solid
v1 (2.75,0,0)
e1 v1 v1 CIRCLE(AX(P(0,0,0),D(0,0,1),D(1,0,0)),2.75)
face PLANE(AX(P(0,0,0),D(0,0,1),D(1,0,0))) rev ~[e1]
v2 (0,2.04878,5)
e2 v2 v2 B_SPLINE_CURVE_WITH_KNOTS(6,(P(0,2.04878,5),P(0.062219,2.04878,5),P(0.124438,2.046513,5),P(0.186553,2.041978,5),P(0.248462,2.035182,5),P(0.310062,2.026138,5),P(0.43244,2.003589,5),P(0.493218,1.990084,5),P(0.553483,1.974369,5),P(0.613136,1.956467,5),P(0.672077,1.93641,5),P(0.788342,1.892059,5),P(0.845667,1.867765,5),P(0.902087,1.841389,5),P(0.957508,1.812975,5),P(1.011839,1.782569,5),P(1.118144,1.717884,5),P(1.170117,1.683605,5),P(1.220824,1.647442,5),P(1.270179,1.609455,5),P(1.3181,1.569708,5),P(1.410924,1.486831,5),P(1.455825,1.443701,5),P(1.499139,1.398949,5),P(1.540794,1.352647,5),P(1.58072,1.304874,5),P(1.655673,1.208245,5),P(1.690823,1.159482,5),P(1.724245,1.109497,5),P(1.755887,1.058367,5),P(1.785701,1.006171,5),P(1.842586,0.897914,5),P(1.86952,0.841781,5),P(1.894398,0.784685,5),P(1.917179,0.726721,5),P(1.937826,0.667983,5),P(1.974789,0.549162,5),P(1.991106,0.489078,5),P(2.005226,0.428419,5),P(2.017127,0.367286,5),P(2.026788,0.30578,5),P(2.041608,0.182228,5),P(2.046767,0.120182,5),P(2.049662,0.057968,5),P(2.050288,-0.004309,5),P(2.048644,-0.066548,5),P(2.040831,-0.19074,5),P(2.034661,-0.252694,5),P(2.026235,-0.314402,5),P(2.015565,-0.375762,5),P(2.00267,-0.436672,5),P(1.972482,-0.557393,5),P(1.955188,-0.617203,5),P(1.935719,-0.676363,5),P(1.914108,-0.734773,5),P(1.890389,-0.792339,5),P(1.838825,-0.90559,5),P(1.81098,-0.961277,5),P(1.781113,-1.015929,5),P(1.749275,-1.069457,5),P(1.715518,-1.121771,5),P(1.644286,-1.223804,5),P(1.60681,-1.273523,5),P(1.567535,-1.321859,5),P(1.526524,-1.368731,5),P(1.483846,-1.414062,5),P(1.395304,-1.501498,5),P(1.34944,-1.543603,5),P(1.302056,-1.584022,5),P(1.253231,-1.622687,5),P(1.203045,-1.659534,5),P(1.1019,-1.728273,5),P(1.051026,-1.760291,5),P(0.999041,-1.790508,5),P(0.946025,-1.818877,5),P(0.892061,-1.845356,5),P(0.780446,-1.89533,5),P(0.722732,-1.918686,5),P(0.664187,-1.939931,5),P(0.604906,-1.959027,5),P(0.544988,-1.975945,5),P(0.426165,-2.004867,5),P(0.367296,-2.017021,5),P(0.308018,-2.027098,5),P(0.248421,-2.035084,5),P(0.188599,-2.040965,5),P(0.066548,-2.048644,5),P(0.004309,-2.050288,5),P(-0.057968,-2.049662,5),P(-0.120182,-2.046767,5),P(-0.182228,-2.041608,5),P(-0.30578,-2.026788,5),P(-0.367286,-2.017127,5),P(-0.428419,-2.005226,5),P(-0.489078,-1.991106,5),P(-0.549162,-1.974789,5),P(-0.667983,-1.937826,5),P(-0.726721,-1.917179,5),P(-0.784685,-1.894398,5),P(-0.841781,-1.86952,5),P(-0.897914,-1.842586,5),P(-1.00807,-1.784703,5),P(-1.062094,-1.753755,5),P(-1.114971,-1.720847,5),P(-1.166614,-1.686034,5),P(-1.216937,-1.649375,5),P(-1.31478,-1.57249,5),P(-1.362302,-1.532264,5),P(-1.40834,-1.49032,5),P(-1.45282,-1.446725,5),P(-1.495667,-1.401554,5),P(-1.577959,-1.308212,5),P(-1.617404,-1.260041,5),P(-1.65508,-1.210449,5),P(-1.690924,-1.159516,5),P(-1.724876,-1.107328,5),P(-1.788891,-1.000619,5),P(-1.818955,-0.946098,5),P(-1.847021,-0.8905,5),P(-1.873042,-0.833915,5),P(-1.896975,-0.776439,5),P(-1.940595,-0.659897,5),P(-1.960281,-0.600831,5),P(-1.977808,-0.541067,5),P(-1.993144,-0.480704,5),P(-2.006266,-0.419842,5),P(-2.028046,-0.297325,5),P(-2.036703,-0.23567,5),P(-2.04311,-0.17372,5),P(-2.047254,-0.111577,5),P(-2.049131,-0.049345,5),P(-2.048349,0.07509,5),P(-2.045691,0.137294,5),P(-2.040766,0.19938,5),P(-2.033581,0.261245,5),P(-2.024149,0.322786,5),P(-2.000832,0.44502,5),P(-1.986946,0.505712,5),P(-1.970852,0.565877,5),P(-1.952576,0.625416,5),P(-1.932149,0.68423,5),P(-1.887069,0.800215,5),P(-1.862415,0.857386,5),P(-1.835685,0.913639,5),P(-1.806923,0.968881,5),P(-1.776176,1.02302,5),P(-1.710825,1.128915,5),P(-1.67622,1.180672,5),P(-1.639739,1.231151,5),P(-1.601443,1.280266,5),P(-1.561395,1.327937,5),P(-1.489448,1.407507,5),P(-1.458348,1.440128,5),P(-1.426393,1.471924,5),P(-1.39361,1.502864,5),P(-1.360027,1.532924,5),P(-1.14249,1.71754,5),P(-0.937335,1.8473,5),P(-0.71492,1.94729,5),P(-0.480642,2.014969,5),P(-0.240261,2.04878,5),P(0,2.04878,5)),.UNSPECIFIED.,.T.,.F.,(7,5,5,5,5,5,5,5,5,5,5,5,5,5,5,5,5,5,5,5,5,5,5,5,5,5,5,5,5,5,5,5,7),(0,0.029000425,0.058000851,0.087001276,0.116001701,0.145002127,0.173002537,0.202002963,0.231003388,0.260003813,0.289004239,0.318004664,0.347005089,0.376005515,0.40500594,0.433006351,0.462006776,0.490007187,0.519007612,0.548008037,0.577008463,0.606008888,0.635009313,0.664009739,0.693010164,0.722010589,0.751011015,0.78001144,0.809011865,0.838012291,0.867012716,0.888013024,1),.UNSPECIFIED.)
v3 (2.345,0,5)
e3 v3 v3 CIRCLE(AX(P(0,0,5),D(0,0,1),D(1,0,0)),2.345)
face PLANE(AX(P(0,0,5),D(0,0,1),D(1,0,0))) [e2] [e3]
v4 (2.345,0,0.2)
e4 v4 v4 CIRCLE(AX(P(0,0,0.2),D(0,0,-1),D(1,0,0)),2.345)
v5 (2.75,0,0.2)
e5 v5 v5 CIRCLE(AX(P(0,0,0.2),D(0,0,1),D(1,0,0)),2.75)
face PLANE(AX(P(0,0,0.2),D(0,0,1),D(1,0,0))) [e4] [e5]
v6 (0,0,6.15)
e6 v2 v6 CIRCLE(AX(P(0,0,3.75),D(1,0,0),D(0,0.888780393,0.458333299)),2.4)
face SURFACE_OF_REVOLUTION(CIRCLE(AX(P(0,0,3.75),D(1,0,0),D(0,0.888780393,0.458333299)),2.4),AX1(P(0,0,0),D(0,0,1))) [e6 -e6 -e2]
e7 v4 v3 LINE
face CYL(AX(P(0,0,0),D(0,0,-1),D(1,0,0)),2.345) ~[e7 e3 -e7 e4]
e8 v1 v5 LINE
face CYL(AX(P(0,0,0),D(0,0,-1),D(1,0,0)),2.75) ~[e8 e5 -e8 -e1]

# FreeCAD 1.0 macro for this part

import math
import FreeCAD as App
import Part
import Sketcher

doc = App.newDocument("Part")
body = doc.addObject("PartDesign::Body", "Body")

sketch1 = body.newObject("Sketcher::SketchObject", "Sketch")
sketch1.AttachmentSupport = (doc.getObject("XY_Plane"), [""])
sketch1.MapMode = "FlatFace"
sketch1.addGeometry(Part.Circle(App.Vector(0, 0, 0), App.Vector(0, 0, 1), 2.8), False)
sketch1.addConstraint([
    Sketcher.Constraint("Coincident", 0, 3, -1, 1),
    Sketcher.Constraint("Diameter", 0, 5.5),
])
pad1 = body.newObject("PartDesign::Pad", "Pad")
pad1.Profile = sketch1
pad1.Length = 0.2

sketch2 = body.newObject("Sketcher::SketchObject", "Sketch001")
sketch2.AttachmentSupport = (doc.getObject("XY_Plane"), [""])
sketch2.MapMode = "FlatFace"
sketch2.addGeometry(Part.Circle(App.Vector(0, 0, 0), App.Vector(0, 0, 1), 2.3), False)
sketch2.addConstraint([
    Sketcher.Constraint("Coincident", 0, 3, -1, 1),
    Sketcher.Constraint("Diameter", 0, 4.69),
])
pad2 = body.newObject("PartDesign::Pad", "Pad001")
pad2.Profile = sketch2
pad2.Length = 5

sketch3 = body.newObject("Sketcher::SketchObject", "Sketch002")
sketch3.AttachmentSupport = (doc.getObject("YZ_Plane"), [""])
sketch3.MapMode = "FlatFace"
sketch3.addGeometry([
    Part.LineSegment(App.Vector(0, 6.2, 0), App.Vector(0, 4.8, 0)),
    Part.LineSegment(App.Vector(0, 4.8, 0), App.Vector(2.1, 4.8, 0)),
    Part.ArcOfCircle(Part.Circle(App.Vector(0, 3.8, 0), App.Vector(0, 0, 1), 2.4), math.radians(27), math.radians(90)),
], False)
sketch3.addConstraint([
    Sketcher.Constraint("Coincident", 0, 2, 1, 1),
    Sketcher.Constraint("Coincident", 1, 2, 2, 1),
    Sketcher.Constraint("Coincident", 2, 2, 0, 1),
    Sketcher.Constraint("Vertical", 0),
    Sketcher.Constraint("Horizontal", 1),
    Sketcher.Constraint("PointOnObject", 2, 3, -2),
    Sketcher.Constraint("PointOnObject", 0, 2, -2),
    Sketcher.Constraint("Radius", 2, 2.4),
    Sketcher.Constraint("DistanceY", 0, 2, 0, 1, 1.3),
    Sketcher.Constraint("DistanceY", -1, 1, 2, 3, 3.75),
])
revolution = body.newObject("PartDesign::Revolution", "Revolution")
revolution.Profile = sketch3
revolution.ReferenceAxis = (sketch3, ["V_Axis"])
revolution.Angle = 360

doc.recompute()
